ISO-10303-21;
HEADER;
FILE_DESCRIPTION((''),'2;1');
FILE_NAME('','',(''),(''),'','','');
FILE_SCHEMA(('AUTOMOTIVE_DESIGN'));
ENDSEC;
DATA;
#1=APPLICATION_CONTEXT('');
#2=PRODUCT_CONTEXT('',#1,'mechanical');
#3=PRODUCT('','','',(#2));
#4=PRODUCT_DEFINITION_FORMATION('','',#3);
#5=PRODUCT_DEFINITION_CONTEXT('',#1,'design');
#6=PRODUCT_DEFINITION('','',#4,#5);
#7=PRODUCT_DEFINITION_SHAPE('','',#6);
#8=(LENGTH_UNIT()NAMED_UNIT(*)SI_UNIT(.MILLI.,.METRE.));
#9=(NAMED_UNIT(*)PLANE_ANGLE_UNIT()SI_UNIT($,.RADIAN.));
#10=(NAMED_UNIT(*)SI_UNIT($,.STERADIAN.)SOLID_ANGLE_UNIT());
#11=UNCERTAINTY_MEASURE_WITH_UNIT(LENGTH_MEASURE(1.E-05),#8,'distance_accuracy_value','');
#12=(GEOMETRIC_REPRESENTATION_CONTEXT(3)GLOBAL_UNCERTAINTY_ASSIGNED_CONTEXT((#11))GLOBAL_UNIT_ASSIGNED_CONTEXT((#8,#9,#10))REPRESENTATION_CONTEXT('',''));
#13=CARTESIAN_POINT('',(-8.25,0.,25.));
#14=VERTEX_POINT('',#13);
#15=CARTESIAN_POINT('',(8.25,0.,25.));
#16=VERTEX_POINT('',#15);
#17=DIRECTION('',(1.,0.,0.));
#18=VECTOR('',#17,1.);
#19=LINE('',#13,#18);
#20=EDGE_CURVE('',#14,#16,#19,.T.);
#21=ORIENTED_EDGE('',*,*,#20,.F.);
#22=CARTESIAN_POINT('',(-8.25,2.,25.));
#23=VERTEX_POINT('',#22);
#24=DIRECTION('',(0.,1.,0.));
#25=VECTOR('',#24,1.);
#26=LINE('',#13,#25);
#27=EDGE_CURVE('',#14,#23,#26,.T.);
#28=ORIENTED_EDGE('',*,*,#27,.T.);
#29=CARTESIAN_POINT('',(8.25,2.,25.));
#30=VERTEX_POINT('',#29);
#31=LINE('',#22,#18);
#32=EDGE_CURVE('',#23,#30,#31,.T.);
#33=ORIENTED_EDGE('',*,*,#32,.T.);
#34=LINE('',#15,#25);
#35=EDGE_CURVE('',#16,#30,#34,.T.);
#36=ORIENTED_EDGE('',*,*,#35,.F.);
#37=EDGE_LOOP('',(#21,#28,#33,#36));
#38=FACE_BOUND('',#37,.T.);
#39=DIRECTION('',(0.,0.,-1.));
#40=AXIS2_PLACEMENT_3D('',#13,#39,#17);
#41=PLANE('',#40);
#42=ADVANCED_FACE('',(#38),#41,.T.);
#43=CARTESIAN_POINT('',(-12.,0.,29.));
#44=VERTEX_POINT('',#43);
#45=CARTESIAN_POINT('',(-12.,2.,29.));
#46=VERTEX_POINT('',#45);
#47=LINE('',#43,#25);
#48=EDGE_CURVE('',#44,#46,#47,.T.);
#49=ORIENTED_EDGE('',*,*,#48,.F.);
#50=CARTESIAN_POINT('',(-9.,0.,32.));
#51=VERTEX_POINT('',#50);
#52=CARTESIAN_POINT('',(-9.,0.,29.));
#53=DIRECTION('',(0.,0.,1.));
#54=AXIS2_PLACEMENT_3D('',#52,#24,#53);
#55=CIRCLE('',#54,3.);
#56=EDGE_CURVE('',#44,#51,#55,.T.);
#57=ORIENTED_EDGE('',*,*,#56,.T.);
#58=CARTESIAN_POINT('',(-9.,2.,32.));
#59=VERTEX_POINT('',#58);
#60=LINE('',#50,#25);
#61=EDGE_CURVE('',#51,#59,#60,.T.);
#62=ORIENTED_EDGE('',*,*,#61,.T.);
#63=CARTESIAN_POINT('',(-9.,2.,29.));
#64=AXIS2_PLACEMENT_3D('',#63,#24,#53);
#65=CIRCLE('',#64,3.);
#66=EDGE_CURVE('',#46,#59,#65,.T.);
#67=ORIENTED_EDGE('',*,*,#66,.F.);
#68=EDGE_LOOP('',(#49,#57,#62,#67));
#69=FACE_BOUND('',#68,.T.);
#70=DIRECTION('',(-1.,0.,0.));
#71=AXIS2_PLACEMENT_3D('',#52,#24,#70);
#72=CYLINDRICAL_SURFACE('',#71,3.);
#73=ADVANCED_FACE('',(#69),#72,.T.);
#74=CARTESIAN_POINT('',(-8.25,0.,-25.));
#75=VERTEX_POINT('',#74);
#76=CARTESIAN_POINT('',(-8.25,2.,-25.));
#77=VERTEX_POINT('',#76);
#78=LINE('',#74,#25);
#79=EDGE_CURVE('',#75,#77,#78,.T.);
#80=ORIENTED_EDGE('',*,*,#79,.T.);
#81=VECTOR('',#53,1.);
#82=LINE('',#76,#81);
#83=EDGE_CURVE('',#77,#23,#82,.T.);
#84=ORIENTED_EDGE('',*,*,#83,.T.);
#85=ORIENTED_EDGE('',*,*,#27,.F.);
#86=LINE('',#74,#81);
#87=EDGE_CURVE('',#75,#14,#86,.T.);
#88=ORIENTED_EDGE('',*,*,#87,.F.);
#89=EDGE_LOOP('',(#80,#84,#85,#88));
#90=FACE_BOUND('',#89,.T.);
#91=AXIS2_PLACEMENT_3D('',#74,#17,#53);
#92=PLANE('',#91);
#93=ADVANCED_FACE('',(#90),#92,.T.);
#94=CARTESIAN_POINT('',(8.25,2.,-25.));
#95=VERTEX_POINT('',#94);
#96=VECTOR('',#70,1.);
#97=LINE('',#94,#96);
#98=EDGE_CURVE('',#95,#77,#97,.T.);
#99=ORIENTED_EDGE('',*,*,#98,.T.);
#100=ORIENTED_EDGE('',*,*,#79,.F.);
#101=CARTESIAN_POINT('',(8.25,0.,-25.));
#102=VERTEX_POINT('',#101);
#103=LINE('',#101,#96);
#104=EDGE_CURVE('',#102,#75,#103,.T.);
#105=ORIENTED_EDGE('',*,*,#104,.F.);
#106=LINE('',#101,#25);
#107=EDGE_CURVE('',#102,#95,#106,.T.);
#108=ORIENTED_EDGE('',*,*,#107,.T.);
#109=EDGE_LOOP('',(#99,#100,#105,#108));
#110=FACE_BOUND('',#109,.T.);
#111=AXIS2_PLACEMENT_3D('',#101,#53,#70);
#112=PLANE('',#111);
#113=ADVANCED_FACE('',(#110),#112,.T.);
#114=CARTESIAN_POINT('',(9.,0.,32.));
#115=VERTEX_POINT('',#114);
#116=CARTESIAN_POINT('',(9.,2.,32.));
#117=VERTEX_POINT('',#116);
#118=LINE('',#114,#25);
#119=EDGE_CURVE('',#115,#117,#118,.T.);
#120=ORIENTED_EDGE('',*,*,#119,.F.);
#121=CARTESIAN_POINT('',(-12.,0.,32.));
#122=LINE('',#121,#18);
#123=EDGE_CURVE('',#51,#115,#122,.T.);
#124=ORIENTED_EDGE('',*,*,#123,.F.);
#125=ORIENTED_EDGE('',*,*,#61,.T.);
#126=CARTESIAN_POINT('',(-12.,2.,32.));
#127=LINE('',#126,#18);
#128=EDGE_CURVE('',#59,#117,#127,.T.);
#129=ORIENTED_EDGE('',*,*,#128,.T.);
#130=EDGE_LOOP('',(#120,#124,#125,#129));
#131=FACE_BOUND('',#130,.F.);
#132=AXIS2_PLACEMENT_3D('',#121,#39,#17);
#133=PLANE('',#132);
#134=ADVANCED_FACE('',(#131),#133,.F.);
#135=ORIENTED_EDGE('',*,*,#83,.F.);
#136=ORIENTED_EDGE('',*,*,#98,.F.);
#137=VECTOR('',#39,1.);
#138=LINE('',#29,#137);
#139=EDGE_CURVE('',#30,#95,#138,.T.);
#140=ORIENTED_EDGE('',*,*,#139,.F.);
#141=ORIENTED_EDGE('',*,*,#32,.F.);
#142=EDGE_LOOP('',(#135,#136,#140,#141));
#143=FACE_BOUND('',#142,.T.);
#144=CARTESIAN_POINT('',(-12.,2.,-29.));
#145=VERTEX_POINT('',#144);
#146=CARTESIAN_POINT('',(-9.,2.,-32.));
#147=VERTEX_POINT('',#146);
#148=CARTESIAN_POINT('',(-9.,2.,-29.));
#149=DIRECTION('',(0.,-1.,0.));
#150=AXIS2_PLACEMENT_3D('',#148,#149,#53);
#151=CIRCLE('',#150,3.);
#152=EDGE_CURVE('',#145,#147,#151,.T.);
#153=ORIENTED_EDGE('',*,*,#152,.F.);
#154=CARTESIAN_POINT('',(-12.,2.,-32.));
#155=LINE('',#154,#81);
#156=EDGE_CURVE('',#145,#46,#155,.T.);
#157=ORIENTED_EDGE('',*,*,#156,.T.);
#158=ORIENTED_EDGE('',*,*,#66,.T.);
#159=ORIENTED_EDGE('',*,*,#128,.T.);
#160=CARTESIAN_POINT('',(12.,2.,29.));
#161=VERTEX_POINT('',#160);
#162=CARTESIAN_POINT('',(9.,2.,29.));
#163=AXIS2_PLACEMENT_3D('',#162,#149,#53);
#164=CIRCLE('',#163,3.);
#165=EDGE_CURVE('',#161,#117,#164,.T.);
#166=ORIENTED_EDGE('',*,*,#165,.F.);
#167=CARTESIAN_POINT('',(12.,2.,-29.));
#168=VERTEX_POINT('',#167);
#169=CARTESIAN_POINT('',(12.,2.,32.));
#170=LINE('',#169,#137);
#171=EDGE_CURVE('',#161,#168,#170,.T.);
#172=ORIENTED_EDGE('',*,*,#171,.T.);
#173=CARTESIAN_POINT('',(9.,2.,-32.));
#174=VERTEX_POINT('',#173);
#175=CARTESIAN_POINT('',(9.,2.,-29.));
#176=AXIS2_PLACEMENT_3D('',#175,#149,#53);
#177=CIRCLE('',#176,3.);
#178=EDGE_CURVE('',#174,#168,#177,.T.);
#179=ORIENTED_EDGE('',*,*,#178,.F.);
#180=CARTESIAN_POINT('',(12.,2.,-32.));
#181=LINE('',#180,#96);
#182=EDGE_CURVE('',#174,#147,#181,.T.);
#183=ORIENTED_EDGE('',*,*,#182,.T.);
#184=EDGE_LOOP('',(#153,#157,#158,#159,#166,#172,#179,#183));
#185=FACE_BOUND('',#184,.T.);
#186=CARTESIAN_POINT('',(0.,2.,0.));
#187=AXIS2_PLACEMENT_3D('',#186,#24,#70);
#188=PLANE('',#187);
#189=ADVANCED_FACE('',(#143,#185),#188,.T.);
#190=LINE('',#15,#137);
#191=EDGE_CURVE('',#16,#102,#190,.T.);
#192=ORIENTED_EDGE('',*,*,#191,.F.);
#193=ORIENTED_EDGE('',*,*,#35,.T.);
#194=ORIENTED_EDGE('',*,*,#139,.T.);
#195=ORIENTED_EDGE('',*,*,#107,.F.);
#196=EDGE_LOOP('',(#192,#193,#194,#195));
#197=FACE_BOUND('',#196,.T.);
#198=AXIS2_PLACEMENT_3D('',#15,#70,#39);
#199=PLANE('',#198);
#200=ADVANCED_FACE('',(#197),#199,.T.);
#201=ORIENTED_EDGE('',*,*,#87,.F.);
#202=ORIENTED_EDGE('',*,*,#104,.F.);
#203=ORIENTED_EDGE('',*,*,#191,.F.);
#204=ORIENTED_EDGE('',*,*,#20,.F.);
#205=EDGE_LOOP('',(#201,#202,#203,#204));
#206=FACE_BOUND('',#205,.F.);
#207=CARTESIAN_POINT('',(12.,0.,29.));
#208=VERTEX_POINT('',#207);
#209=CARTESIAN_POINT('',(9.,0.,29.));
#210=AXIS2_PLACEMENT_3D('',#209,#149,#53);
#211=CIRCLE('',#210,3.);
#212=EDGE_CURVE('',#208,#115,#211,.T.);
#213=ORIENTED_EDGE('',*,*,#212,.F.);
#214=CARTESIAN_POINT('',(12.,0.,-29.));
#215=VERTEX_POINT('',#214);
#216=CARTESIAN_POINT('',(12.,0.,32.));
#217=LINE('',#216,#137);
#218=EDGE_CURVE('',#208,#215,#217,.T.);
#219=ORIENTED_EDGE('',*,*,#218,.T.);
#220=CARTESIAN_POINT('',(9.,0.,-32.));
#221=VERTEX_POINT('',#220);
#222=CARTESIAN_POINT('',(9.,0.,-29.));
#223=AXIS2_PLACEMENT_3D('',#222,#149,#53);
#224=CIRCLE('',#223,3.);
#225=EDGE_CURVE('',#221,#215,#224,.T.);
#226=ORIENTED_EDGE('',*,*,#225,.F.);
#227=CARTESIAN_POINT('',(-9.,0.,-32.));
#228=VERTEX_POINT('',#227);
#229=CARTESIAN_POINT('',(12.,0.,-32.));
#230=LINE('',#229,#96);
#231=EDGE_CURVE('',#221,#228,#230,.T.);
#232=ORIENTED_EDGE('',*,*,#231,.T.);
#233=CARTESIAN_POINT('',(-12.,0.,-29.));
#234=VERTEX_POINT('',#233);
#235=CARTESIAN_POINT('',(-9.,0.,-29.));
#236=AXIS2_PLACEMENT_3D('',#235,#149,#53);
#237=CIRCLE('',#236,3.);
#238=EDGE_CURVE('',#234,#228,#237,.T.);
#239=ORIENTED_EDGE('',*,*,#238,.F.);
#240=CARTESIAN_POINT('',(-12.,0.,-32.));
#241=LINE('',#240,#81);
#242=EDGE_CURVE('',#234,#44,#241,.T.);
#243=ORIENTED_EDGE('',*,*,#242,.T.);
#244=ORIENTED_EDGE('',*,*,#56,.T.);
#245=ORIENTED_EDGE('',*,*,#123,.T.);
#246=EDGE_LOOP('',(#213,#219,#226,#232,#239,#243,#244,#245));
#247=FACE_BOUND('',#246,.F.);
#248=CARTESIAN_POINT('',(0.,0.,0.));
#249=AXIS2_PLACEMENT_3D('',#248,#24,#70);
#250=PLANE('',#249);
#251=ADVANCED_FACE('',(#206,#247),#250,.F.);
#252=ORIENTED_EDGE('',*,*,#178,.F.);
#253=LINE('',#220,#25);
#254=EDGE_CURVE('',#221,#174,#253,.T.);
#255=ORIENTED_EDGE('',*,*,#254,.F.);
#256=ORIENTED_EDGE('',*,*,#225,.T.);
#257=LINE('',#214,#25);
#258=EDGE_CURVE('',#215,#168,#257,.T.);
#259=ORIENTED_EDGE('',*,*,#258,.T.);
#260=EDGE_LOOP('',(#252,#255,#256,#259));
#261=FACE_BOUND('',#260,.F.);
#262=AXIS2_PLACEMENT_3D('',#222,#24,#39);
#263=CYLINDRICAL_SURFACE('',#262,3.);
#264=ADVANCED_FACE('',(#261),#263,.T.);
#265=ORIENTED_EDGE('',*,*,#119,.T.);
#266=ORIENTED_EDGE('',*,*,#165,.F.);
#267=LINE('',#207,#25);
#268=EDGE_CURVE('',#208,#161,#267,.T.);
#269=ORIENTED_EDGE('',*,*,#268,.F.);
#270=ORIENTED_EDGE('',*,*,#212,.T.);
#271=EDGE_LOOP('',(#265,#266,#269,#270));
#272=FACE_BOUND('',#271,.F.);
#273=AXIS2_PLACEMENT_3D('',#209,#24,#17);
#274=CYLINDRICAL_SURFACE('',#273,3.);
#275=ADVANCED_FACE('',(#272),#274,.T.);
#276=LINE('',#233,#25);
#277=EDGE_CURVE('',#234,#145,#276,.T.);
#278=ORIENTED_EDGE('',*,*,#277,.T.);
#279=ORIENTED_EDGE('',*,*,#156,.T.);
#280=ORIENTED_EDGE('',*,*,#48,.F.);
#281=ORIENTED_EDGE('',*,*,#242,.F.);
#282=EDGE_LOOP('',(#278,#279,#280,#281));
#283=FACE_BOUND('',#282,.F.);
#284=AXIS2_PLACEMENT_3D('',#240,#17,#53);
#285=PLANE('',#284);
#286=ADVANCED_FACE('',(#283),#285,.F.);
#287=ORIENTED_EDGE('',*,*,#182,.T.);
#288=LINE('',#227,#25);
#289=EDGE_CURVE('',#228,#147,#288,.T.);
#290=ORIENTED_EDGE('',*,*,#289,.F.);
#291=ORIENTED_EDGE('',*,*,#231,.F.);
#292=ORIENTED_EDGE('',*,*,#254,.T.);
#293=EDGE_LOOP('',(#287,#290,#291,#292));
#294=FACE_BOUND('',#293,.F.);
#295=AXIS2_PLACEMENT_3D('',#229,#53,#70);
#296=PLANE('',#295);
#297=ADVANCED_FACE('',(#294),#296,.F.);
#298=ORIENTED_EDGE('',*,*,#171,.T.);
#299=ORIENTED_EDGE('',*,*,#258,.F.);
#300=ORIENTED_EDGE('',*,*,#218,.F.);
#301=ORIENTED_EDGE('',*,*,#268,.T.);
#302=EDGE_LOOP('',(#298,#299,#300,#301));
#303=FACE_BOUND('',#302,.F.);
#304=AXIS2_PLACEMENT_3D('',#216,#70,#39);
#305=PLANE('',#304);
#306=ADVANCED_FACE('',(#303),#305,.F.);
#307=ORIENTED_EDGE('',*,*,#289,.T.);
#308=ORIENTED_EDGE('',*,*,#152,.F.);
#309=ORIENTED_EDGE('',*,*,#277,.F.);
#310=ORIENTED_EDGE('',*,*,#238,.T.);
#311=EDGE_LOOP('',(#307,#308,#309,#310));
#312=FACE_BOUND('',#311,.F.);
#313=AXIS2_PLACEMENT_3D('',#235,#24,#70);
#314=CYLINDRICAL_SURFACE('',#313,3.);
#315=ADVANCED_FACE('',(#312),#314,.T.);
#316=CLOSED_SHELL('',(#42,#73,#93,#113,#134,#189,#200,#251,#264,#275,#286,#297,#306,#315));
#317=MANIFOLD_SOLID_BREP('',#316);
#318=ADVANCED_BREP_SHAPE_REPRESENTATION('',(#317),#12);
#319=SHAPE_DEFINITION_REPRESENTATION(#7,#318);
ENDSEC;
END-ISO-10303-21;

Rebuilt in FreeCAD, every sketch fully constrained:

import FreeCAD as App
import Part
import Sketcher
Q = App.Units.Quantity


def edges_at(feature, points):
    """Names of the edges that pass closest to the given points."""
    edges = feature.Shape.Edges
    near = lambda p: min(range(len(edges)), key=lambda i: edges[i].distToShape(Part.Vertex(*p))[0])
    return sorted({f"Edge{near(p) + 1}" for p in points})


def add_polygon(sketch, points):
    """Adds a closed chain of lines whose ends are joined by coincident constraints."""
    first, n = sketch.GeometryCount, len(points)
    for a, b in zip(points, points[1:] + points[:1]):
        sketch.addGeometry(Part.LineSegment(App.Vector(*a, 0), App.Vector(*b, 0)), False)
    for i in range(n):
        sketch.addConstraint(Sketcher.Constraint("Coincident", first + i, 2, first + (i + 1) % n, 1))

doc = App.newDocument("Part")
body = doc.addObject("PartDesign::Body", "Body")

# Sketch on XZ plane
sketch1 = body.newObject("Sketcher::SketchObject", "Sketch")
sketch1.AttachmentSupport = (doc.getObject("XZ_Plane"), [""])
sketch1.MapMode = "FlatFace"
add_polygon(sketch1, [(-12, -32), (-12, 32), (12, 32), (12, -32)])  # lines 0-3
add_polygon(sketch1, [(8, 25), (-8, 25), (-8, -25), (8, -25)])  # lines 4-7
sketch1.addConstraint([
    Sketcher.Constraint("Vertical", 0),
    Sketcher.Constraint("Horizontal", 1),
    Sketcher.Constraint("Vertical", 2),
    Sketcher.Constraint("Horizontal", 3),
    Sketcher.Constraint("Horizontal", 4),
    Sketcher.Constraint("Vertical", 5),
    Sketcher.Constraint("Horizontal", 6),
    Sketcher.Constraint("Vertical", 7),
    Sketcher.Constraint("Symmetric", 0, 2, 2, 2, -1, 1),
    Sketcher.Constraint("Symmetric", 4, 2, 6, 2, -1, 1),
    Sketcher.Constraint("DistanceX", 1, 1, 1, 2, Q("24 mm")),
    Sketcher.Constraint("DistanceY", 0, 1, 0, 2, Q("64 mm")),
    Sketcher.Constraint("DistanceY", 5, 2, 5, 1, Q("50 mm")),
    Sketcher.Constraint("DistanceX", 4, 2, 4, 1, Q("16.5 mm")),
])
pad1 = body.newObject("PartDesign::Pad", "Pad")
pad1.Profile = sketch1
pad1.Length = 2
pad1.Reversed = True
doc.recompute()

fillet = body.newObject("PartDesign::Fillet", "Fillet")
fillet.Base = (pad1, edges_at(pad1, [
    (-12, 1, 32),
    (12, 1, 32),
    (12, 1, -32),
    (-12, 1, -32),
]))
fillet.Radius = 3

doc.recompute()
